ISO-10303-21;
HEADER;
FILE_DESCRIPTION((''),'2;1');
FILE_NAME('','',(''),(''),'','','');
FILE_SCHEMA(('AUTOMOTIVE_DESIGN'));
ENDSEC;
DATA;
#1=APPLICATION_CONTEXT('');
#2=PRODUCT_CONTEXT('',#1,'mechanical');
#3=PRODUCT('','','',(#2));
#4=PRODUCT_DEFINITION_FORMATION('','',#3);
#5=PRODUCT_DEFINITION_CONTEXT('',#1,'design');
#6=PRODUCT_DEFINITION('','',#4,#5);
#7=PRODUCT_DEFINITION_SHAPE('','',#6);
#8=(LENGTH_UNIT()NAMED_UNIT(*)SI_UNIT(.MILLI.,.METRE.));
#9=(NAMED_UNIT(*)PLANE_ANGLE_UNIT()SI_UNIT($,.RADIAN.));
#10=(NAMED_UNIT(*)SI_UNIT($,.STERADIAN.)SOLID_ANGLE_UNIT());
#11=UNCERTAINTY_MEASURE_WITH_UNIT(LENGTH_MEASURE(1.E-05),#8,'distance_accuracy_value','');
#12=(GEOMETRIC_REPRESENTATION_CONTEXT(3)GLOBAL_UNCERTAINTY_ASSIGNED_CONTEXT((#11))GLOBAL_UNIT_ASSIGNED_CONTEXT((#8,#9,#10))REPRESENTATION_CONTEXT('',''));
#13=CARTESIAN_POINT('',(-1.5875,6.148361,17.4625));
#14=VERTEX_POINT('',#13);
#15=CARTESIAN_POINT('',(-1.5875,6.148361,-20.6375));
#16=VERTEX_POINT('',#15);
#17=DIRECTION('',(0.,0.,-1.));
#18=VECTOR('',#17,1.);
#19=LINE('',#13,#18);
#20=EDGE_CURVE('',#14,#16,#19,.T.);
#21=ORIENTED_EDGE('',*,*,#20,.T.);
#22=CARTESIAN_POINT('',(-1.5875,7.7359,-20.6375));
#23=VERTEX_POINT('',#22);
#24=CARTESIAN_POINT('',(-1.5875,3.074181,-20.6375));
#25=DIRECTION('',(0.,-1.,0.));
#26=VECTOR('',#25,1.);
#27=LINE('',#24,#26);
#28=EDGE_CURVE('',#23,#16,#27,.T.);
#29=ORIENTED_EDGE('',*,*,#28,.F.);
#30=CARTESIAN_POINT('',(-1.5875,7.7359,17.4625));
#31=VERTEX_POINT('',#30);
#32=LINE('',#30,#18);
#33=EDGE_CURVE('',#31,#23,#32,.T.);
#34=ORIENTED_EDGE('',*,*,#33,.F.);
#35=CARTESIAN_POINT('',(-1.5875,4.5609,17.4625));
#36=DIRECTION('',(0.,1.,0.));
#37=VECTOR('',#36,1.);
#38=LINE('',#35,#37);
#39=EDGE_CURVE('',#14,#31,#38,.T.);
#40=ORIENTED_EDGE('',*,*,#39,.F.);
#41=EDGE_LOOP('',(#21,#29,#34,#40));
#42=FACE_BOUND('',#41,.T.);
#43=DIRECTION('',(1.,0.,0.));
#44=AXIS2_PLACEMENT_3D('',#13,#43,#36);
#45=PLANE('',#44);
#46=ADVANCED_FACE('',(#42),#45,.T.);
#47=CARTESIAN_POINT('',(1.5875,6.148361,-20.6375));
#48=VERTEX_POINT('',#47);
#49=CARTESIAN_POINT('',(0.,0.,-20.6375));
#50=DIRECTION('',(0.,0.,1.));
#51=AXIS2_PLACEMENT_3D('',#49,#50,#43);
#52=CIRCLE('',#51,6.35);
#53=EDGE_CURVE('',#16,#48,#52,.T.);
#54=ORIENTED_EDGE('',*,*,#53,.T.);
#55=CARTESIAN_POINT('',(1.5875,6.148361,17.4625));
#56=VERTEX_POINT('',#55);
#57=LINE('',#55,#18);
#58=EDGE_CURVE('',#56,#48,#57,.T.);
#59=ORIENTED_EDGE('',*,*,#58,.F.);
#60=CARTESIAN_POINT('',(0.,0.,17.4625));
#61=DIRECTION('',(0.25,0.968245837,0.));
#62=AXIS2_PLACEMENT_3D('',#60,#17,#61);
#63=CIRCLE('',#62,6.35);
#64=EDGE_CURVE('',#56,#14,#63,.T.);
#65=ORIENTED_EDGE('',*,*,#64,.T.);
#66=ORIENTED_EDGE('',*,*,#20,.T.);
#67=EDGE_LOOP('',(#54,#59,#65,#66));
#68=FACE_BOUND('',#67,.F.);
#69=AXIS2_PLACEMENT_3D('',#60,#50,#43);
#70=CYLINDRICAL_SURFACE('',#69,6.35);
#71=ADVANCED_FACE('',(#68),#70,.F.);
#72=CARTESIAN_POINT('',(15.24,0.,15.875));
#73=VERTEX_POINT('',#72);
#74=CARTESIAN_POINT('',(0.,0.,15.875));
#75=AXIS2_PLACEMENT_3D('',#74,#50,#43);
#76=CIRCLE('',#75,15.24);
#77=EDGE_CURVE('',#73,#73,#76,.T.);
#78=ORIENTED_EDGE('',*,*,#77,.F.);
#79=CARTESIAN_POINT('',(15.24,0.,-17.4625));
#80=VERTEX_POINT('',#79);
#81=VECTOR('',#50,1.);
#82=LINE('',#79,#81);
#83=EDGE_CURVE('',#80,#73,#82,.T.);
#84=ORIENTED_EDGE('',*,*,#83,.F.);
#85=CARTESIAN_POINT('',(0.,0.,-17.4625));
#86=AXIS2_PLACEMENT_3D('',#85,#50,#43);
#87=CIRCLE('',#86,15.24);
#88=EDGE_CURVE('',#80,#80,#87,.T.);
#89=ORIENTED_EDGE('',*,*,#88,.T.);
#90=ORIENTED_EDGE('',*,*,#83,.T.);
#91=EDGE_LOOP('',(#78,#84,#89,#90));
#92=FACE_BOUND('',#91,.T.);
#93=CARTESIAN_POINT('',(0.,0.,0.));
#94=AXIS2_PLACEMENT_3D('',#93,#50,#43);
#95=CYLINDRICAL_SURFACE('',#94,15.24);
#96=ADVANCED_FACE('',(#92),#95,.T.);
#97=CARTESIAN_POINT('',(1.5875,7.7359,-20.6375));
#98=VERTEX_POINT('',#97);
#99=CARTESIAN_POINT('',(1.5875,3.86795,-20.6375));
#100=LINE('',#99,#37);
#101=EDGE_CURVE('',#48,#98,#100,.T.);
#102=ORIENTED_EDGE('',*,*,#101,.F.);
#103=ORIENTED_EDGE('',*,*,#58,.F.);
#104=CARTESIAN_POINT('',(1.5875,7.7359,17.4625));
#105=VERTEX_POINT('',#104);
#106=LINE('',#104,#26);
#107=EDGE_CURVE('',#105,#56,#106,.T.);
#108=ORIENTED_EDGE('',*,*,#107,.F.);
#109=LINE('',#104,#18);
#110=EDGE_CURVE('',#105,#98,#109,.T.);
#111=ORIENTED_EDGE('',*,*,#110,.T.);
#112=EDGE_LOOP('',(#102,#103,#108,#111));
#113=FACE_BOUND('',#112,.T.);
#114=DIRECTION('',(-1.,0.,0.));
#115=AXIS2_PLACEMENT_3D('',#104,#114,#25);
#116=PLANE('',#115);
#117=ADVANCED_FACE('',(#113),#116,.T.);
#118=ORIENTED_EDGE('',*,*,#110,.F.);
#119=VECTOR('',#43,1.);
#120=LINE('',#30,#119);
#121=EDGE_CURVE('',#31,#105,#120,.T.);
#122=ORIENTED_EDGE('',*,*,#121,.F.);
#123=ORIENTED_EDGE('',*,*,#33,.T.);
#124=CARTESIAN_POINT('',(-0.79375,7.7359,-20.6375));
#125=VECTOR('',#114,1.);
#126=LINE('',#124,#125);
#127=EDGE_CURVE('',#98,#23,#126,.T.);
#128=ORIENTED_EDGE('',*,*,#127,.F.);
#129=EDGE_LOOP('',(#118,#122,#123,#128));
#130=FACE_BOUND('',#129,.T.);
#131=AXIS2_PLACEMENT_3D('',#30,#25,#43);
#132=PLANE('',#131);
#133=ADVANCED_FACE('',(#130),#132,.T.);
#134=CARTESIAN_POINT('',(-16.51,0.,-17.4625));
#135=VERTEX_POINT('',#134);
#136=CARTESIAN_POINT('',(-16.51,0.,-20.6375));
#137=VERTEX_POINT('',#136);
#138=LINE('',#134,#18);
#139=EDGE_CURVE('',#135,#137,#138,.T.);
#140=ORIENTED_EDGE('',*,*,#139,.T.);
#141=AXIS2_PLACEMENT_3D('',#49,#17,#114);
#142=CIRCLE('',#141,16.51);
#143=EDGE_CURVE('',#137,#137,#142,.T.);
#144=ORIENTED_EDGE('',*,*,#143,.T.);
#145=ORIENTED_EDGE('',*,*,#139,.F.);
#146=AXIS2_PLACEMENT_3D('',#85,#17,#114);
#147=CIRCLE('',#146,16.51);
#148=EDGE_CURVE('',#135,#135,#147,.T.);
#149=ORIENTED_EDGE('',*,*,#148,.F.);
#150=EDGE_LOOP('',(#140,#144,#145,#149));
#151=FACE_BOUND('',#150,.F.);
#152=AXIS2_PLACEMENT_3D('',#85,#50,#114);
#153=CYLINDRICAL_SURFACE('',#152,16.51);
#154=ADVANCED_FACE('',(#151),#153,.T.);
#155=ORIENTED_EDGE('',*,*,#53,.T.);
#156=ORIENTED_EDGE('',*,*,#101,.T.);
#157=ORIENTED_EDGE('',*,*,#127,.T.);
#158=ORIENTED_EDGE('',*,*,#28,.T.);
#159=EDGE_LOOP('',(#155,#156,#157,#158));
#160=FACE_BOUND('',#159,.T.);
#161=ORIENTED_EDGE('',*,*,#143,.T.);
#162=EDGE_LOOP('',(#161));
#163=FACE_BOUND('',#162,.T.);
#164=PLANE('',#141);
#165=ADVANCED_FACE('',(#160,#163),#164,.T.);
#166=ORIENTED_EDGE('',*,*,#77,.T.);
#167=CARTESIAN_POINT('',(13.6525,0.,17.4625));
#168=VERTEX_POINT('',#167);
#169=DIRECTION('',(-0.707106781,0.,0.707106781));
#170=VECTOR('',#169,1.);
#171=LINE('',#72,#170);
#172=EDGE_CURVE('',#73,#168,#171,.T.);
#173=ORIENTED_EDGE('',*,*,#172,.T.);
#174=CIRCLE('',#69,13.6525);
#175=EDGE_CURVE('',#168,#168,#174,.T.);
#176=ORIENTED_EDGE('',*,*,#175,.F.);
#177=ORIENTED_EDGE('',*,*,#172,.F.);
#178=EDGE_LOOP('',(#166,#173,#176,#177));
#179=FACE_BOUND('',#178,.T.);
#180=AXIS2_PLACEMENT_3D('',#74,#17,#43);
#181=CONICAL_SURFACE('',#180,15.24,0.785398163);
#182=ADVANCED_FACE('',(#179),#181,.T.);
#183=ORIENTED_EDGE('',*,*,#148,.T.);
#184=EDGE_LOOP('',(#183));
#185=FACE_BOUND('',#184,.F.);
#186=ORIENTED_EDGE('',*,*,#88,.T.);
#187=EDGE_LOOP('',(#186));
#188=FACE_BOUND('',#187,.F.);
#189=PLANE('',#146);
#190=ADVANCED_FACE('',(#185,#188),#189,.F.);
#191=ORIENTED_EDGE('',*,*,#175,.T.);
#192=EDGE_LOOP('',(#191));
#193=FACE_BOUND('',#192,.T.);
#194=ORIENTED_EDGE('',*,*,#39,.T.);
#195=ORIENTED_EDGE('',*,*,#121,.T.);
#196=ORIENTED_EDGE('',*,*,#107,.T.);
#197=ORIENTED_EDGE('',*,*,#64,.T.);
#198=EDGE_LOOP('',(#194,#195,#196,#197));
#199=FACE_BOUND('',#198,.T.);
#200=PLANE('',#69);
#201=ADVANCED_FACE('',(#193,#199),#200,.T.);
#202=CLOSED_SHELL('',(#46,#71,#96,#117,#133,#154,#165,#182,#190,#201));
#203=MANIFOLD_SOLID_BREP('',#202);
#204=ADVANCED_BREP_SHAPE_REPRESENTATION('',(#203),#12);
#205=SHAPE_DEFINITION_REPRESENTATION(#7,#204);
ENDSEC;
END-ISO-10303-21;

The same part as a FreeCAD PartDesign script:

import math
import FreeCAD as App
import Part
import Sketcher
from FreeCAD import Vector
Q = App.Units.Quantity


def edges_at(feature, points):
    """Names of the edges that pass closest to the given points."""
    edges = feature.Shape.Edges
    near = lambda p: min(range(len(edges)), key=lambda i: edges[i].distToShape(Part.Vertex(*p))[0])
    return sorted({f"Edge{near(p) + 1}" for p in points})

doc = App.newDocument("Part")
params = doc.addObject("Spreadsheet::Sheet", "Params")
for row, (alias, value) in enumerate([
    ("sketch1_diameter", "1.2 in"),
    ("pad1_length", "1.375 in"),
    ("sketch2_diameter", "1.3 in"),
    ("pad2_length", "0.125 in"),
    ("sketch3_radius", "0.25 in"),
    ("sketch3_width", "0.125 in"),
    ("sketch3_height", "0.0625 in"),
    ("chamfer_size", "0.0625 in"),
], start=1):
    params.set(f"A{row}", alias)
    params.set(f"B{row}", "=" + value)
    params.setAlias(f"B{row}", alias)

body = doc.addObject("PartDesign::Body", "Body")

sketch1 = body.newObject("Sketcher::SketchObject", "Sketch")
sketch1.AttachmentSupport = (doc.getObject("XY_Plane"), [""])
sketch1.MapMode = "FlatFace"
sketch1.addGeometry(Part.Circle(Vector(0, 0, 0), Vector(0, 0, 1), 15.24), False)
sketch1.addConstraint([
    Sketcher.Constraint("Coincident", 0, 3, -1, 1),
    Sketcher.Constraint("Diameter", 0, Q("1.2 in")),
])
sketch1.setExpression("Constraints[1]", "Params.sketch1_diameter")
pad1 = body.newObject("PartDesign::Pad", "Pad")
pad1.Profile = sketch1
pad1.setExpression("Length", "Params.pad1_length")
pad1.Midplane = True

sketch2 = body.newObject("Sketcher::SketchObject", "Sketch001")
sketch2.AttachmentSupport = (doc.getObject("XY_Plane"), [""])
sketch2.MapMode = "FlatFace"
sketch2.AttachmentOffset = App.Placement(Vector(0, 0, -0.6875 * 25.4), App.Rotation())
sketch2.addGeometry(Part.Circle(Vector(0, 0, 0), Vector(0, 0, 1), 16.51), False)
sketch2.addConstraint([
    Sketcher.Constraint("Coincident", 0, 3, -1, 1),
    Sketcher.Constraint("Diameter", 0, Q("1.3 in")),
])
sketch2.setExpression("Constraints[1]", "Params.sketch2_diameter")
pad2 = body.newObject("PartDesign::Pad", "Pad001")
pad2.Profile = sketch2
pad2.setExpression("Length", "Params.pad2_length")
pad2.Reversed = True

sketch3 = body.newObject("Sketcher::SketchObject", "Sketch002")
sketch3.AttachmentSupport = (doc.getObject("XY_Plane"), [""])
sketch3.MapMode = "FlatFace"
sketch3.AttachmentOffset = App.Placement(Vector(0, 0, 0.6875 * 25.4), App.Rotation())
sketch3.addGeometry([
    Part.ArcOfCircle(Part.Circle(Vector(0, 0, 0), Vector(0, 0, 1), 6.35), math.radians(104.477512), math.radians(435.522488)),
    Part.LineSegment(Vector(1.5875, 6.148361, 0), Vector(1.5875, 7.7359, 0)),
    Part.LineSegment(Vector(1.5875, 7.7359, 0), Vector(-1.5875, 7.7359, 0)),
    Part.LineSegment(Vector(-1.5875, 7.7359, 0), Vector(-1.5875, 6.148361, 0)),
], False)
sketch3.addConstraint([
    Sketcher.Constraint("Coincident", 0, 2, 1, 1),
    Sketcher.Constraint("Coincident", 1, 2, 2, 1),
    Sketcher.Constraint("Coincident", 2, 2, 3, 1),
    Sketcher.Constraint("Coincident", 3, 2, 0, 1),
    Sketcher.Constraint("Vertical", 1),
    Sketcher.Constraint("Horizontal", 2),
    Sketcher.Constraint("Vertical", 3),
    Sketcher.Constraint("Coincident", 0, 3, -1, 1),
    Sketcher.Constraint("Horizontal", 0, 2, 3, 2),
    Sketcher.Constraint("Radius", 0, Q("0.25 in")),
    Sketcher.Constraint("DistanceX", 2, 2, 2, 1, Q("0.125 in")),
    Sketcher.Constraint("DistanceY", 1, 1, 1, 2, Q("0.0625 in")),
])
sketch3.setExpression("Constraints[9]", "Params.sketch3_radius")
sketch3.setExpression("Constraints[10]", "Params.sketch3_width")
sketch3.setExpression("Constraints[11]", "Params.sketch3_height")
pocket1 = body.newObject("PartDesign::Pocket", "Pocket")
pocket1.Profile = sketch3
pocket1.Type = "ThroughAll"
doc.recompute()

chamfer = body.newObject("PartDesign::Chamfer", "Chamfer")
chamfer.Base = (pocket1, edges_at(pocket1, [(-15.24, 0, 17.462)]))
chamfer.setExpression("Size", "Params.chamfer_size")

doc.recompute()
